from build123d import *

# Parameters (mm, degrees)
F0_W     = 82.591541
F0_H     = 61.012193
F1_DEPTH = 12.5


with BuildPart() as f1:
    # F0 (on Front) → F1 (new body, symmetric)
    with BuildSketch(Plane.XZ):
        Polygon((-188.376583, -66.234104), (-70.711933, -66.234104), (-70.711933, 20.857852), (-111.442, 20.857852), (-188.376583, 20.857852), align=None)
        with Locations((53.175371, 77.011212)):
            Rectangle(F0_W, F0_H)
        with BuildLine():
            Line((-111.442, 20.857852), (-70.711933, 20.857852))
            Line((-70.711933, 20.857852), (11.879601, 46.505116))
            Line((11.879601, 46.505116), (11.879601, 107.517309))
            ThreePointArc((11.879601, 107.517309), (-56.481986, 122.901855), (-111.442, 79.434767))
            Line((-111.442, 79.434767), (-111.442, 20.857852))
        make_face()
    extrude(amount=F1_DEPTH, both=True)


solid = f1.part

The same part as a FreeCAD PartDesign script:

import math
import FreeCAD as App
import Part
import Sketcher

V = App.Vector

doc = App.newDocument("Part")
body = doc.addObject("PartDesign::Body", "Body")

sketch1 = doc.addObject("Sketcher::SketchObject", "Sketch")
body.addObject(sketch1)
sketch1.AttachmentSupport = (doc.XZ_Plane, [""])
sketch1.MapMode = "FlatFace"
sketch1.addGeometry(Part.LineSegment(V(-188.376583, -66.234104, 0), V(-70.711933, -66.234104, 0)), False)
sketch1.addGeometry(Part.LineSegment(V(-70.711933, -66.234104, 0), V(-70.711933, 20.857852, 0)), False)
sketch1.addGeometry(Part.LineSegment(V(-70.711933, 20.857852, 0), V(11.879601, 46.505116, 0)), False)
sketch1.addGeometry(Part.LineSegment(V(11.879601, 46.505116, 0), V(94.471142, 46.505116, 0)), False)
sketch1.addGeometry(Part.LineSegment(V(94.471142, 46.505116, 0), V(94.471142, 107.517308, 0)), False)
sketch1.addGeometry(Part.LineSegment(V(94.471142, 107.517308, 0), V(11.879601, 107.517308, 0)), False)
sketch1.addGeometry(Part.LineSegment(V(11.879601, 107.517309, 0), V(11.879601, 107.517308, 0)), False)
sketch1.addGeometry(Part.ArcOfCircle(Part.Circle(V(-38.420089, 43.584889, 0), V(0, 0, 1), 81.347484), math.radians(51.805625), math.radians(153.851415)), False)
sketch1.addGeometry(Part.LineSegment(V(-111.442, 79.434767, 0), V(-111.442, 20.857852, 0)), False)
sketch1.addGeometry(Part.LineSegment(V(-111.442, 20.857852, 0), V(-188.376583, 20.857852, 0)), False)
sketch1.addGeometry(Part.LineSegment(V(-188.376583, 20.857852, 0), V(-188.376583, -66.234104, 0)), False)
sketch1.addConstraint(Sketcher.Constraint("Coincident", 0, 2, 1, 1))
sketch1.addConstraint(Sketcher.Constraint("Coincident", 1, 2, 2, 1))
sketch1.addConstraint(Sketcher.Constraint("Coincident", 2, 2, 3, 1))
sketch1.addConstraint(Sketcher.Constraint("Coincident", 3, 2, 4, 1))
sketch1.addConstraint(Sketcher.Constraint("Coincident", 4, 2, 5, 1))
sketch1.addConstraint(Sketcher.Constraint("Coincident", 5, 2, 6, 1))
sketch1.addConstraint(Sketcher.Constraint("Coincident", 6, 2, 7, 1))
sketch1.addConstraint(Sketcher.Constraint("Coincident", 7, 2, 8, 1))
sketch1.addConstraint(Sketcher.Constraint("Coincident", 8, 2, 9, 1))
sketch1.addConstraint(Sketcher.Constraint("Coincident", 9, 2, 10, 1))
sketch1.addConstraint(Sketcher.Constraint("Coincident", 10, 2, 0, 1))
sketch1.addConstraint(Sketcher.Constraint("Horizontal", 0))
sketch1.addConstraint(Sketcher.Constraint("Vertical", 1))
sketch1.addConstraint(Sketcher.Constraint("Horizontal", 3))
sketch1.addConstraint(Sketcher.Constraint("Vertical", 4))
sketch1.addConstraint(Sketcher.Constraint("Horizontal", 5))
sketch1.addConstraint(Sketcher.Constraint("Horizontal", 6))
sketch1.addConstraint(Sketcher.Constraint("Vertical", 8))
sketch1.addConstraint(Sketcher.Constraint("Horizontal", 9))
sketch1.addConstraint(Sketcher.Constraint("Vertical", 10))
sketch1.addConstraint(Sketcher.Constraint("DistanceX", 7, 2, -1, 1, 111.442))
sketch1.addConstraint(Sketcher.Constraint("Radius", 7, 81.347484))
sketch1.addConstraint(Sketcher.Constraint("DistanceX", 0, 1, 0, 2, 117.66465))
sketch1.addConstraint(Sketcher.Constraint("DistanceX", 3, 1, 3, 2, 82.591541))
sketch1.addConstraint(Sketcher.Constraint("DistanceX", 5, 2, 5, 1, 82.591541))
sketch1.addConstraint(Sketcher.Constraint("DistanceX", -1, 1, 2, 2, 11.879601))
sketch1.addConstraint(Sketcher.Constraint("DistanceX", -1, 1, 6, 2, 11.879601))
sketch1.addConstraint(Sketcher.Constraint("Distance", 2, 86.482042))
sketch1.addConstraint(Sketcher.Constraint("DistanceX", 9, 2, 9, 1, 76.934583))
sketch1.addConstraint(Sketcher.Constraint("DistanceY", 1, 1, 1, 2, 87.091956))
sketch1.addConstraint(Sketcher.Constraint("DistanceY", 4, 1, 4, 2, 61.012193))
sketch1.addConstraint(Sketcher.Constraint("DistanceY", 8, 2, 8, 1, 58.576915))
sketch1.addConstraint(Sketcher.Constraint("DistanceY", 10, 2, 10, 1, 87.091956))
sketch1.addConstraint(Sketcher.Constraint("DistanceY", -1, 1, 7, 3, 43.584889))
pad1 = doc.addObject("PartDesign::Pad", "Pad")
body.addObject(pad1)
pad1.Profile = sketch1
pad1.Length = 25
pad1.Midplane = True

doc.recompute()
